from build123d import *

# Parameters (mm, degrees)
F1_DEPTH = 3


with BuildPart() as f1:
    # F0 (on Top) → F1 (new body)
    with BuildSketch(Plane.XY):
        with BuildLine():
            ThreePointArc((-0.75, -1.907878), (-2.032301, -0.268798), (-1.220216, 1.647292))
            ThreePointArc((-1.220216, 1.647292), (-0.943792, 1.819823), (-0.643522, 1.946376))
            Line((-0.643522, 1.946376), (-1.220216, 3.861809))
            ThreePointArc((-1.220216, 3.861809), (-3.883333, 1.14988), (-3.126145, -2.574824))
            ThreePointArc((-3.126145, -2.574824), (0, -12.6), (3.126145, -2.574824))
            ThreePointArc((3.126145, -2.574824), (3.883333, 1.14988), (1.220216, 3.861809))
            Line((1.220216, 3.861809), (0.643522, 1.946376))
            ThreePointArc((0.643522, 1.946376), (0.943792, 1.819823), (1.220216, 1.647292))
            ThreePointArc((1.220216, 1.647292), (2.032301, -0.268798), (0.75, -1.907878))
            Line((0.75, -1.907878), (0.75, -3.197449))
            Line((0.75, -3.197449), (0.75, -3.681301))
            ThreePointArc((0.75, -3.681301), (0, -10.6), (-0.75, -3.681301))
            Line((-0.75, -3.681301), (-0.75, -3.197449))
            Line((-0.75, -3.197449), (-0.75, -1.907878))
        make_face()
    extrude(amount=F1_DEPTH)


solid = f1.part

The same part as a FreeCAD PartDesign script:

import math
import FreeCAD as App
import Part
import Sketcher
Q = App.Units.Quantity

doc = App.newDocument("Part")
body = doc.addObject("PartDesign::Body", "Body")

# Sketch on XY plane
sketch1 = doc.addObject("Sketcher::SketchObject", "Sketch")
body.addObject(sketch1)
sketch1.AttachmentSupport = (doc.XY_Plane, [""])
sketch1.MapMode = "FlatFace"
sketch1.addGeometry([
    Part.ArcOfCircle(Part.Circle(App.Vector(0, 0, 0), App.Vector(0, 0, 1), 2), math.radians(127), math.radians(249)),  # 0
    Part.ArcOfCircle(Part.Circle(App.Vector(0, 0, 0), App.Vector(0, 0, 1), 2), math.radians(108.3), math.radians(126.53)),  # 1
    Part.LineSegment(App.Vector(-0.6, 1.9, 0), App.Vector(-1.2, 3.9, 0)),  # 2
    Part.ArcOfCircle(Part.Circle(App.Vector(0, 0, 0), App.Vector(0, 0, 1), 4), math.radians(108), math.radians(219)),  # 3
    Part.ArcOfCircle(Part.Circle(App.Vector(0, -7.1, 0), App.Vector(0, 0, 1), 5.5), math.radians(125), math.radians(415)),  # 4
    Part.ArcOfCircle(Part.Circle(App.Vector(0, 0, 0), App.Vector(0, 0, 1), 4), math.radians(-39), math.radians(72)),  # 5
    Part.LineSegment(App.Vector(1.2, 3.9, 0), App.Vector(0.6, 1.9, 0)),  # 6
    Part.ArcOfCircle(Part.Circle(App.Vector(0, 0, 0), App.Vector(0, 0, 1), 2), math.radians(53.47), math.radians(71.7)),  # 7
    Part.ArcOfCircle(Part.Circle(App.Vector(0, 0, 0), App.Vector(0, 0, 1), 2), math.radians(-69), math.radians(53)),  # 8
    Part.LineSegment(App.Vector(0.8, -1.9, 0), App.Vector(0.8, -3.7, 0)),  # 9
    Part.ArcOfCircle(Part.Circle(App.Vector(0, -7.1, 0), App.Vector(0, 0, 1), 3.5), math.radians(102), math.radians(438)),  # 10
    Part.LineSegment(App.Vector(-0.8, -3.7, 0), App.Vector(-0.8, -1.9, 0)),  # 11
], False)
sketch1.addConstraint([
    Sketcher.Constraint("Tangent", 0, 1, 1, 2),
    Sketcher.Constraint("Coincident", 1, 1, 2, 1),
    Sketcher.Constraint("Coincident", 2, 2, 3, 1),
    Sketcher.Constraint("Coincident", 3, 2, 4, 1),
    Sketcher.Constraint("Coincident", 4, 2, 5, 1),
    Sketcher.Constraint("Coincident", 5, 2, 6, 1),
    Sketcher.Constraint("Coincident", 6, 2, 7, 2),
    Sketcher.Constraint("Tangent", 7, 1, 8, 2),
    Sketcher.Constraint("Coincident", 8, 1, 9, 1),
    Sketcher.Constraint("Coincident", 9, 2, 10, 2),
    Sketcher.Constraint("Coincident", 10, 1, 11, 1),
    Sketcher.Constraint("Coincident", 11, 2, 0, 2),
    Sketcher.Constraint("Vertical", 9),
    Sketcher.Constraint("Vertical", 11),
    Sketcher.Constraint("Coincident", 0, 3, -1, 1),
    Sketcher.Constraint("Coincident", 3, 3, -1, 1),
    Sketcher.Constraint("Coincident", 5, 3, -1, 1),
    Sketcher.Constraint("Coincident", 7, 3, -1, 1),
    Sketcher.Constraint("Coincident", 10, 3, 4, 3),
    Sketcher.Constraint("Equal", 0, 1),
    Sketcher.Constraint("Equal", 3, 5),
    Sketcher.Constraint("Equal", 1, 7),
    Sketcher.Constraint("Equal", 7, 8),
    Sketcher.Constraint("Symmetric", 9, 2, 10, 1, -2),
    Sketcher.Constraint("Horizontal", 2, 2, 5, 2),
    Sketcher.Constraint("Horizontal", 1, 1, 6, 2),
    Sketcher.Constraint("Horizontal", 0, 1, 7, 1),
    Sketcher.Constraint("Vertical", 0, 1, 2, 2),
    Sketcher.Constraint("Radius", 4, Q("5.5 mm")),
    Sketcher.Constraint("Radius", 10, Q("3.5 mm")),
    Sketcher.Constraint("Radius", 0, Q("2.049999 mm")),
    Sketcher.Constraint("Radius", 3, Q("4.05 mm")),
    Sketcher.Constraint("DistanceY", 4, 3, -1, 1, Q("7.1 mm")),
    Sketcher.Constraint("DistanceX", 10, 1, 9, 2, Q("1.5 mm")),
    Sketcher.Constraint("DistanceY", -1, 1, 0, 1, Q("1.647292 mm")),
    Sketcher.Constraint("DistanceX", 1, 1, 7, 3, Q("0.643521 mm")),
])
pad1 = doc.addObject("PartDesign::Pad", "Pad")
body.addObject(pad1)
pad1.Profile = sketch1
pad1.Length = 3

doc.recompute()
